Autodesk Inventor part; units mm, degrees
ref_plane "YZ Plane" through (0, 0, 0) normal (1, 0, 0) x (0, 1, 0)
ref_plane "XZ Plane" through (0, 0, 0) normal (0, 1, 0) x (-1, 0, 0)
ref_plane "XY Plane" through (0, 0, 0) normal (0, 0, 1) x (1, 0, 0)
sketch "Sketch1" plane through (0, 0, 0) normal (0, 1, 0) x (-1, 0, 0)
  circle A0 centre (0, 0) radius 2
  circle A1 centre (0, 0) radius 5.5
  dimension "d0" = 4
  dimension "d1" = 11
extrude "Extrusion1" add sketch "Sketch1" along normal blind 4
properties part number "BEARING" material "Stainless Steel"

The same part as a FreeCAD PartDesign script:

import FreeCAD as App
import Part
import Sketcher

V = App.Vector
Q = App.Units.Quantity

doc = App.newDocument("Part")
body = doc.addObject("PartDesign::Body", "Body")

# Sketch on XZ plane
sketch1 = body.newObject("Sketcher::SketchObject", "Sketch")
sketch1.AttachmentSupport = (doc.getObject("XZ_Plane"), [""])
sketch1.MapMode = "FlatFace"
sketch1.addGeometry(Part.Circle(V(0, 0, 0), V(0, 0, 1), 5.5), False)
sketch1.addGeometry(Part.Circle(V(0, 0, 0), V(0, 0, 1), 2), False)
sketch1.addConstraint(Sketcher.Constraint("Coincident", 0, 3, -1, 1))
sketch1.addConstraint(Sketcher.Constraint("Coincident", 1, 3, -1, 1))
sketch1.addConstraint(Sketcher.Constraint("Diameter", 0, Q("11 mm")))
sketch1.addConstraint(Sketcher.Constraint("Diameter", 1, Q("4 mm")))
pad1 = body.newObject("PartDesign::Pad", "Pad")
pad1.Profile = sketch1
pad1.Length = 4
pad1.Reversed = True

doc.recompute()
